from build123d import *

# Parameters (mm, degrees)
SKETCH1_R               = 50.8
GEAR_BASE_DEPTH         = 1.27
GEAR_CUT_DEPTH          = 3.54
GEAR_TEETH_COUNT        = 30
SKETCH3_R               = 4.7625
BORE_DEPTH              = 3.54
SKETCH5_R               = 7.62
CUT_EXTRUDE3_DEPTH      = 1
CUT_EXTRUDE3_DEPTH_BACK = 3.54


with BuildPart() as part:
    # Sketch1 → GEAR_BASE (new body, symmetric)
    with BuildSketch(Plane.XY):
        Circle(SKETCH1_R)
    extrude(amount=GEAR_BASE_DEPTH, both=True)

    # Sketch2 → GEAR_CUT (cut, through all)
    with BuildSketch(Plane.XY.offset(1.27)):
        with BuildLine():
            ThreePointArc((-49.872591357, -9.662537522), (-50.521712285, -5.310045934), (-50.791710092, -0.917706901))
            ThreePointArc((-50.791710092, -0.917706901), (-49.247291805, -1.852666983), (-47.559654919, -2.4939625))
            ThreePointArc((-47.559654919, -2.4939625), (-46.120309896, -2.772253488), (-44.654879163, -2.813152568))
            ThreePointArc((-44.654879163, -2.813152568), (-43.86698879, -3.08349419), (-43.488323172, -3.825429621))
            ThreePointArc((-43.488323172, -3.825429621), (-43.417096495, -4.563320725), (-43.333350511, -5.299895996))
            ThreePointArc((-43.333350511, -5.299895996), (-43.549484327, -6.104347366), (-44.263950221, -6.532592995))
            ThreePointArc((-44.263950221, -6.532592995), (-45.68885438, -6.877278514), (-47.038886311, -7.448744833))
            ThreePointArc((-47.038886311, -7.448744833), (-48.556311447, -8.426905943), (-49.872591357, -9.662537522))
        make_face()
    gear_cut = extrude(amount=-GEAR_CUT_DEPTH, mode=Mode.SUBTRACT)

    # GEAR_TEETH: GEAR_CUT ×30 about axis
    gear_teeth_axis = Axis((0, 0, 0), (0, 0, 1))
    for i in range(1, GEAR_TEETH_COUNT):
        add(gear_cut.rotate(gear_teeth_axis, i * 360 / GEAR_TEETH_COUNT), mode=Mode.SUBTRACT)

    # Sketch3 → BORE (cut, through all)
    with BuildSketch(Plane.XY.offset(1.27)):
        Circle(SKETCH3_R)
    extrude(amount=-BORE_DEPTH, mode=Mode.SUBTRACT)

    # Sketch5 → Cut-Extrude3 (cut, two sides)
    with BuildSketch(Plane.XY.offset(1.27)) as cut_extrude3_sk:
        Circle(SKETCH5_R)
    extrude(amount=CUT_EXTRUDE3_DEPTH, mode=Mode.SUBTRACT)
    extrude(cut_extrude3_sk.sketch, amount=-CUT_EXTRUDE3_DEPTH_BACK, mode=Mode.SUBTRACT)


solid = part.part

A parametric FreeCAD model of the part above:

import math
import FreeCAD as App
import Part
import Sketcher
Q = App.Units.Quantity

doc = App.newDocument("Part")
body = doc.addObject("PartDesign::Body", "Body")

# Sketch on XY plane
sketch1 = body.newObject("Sketcher::SketchObject", "Sketch")
sketch1.AttachmentSupport = (doc.getObject("XY_Plane"), [""])
sketch1.MapMode = "FlatFace"
sketch1.addGeometry(Part.Circle(App.Vector(0, 0, 0), App.Vector(0, 0, 1), 51), False)
sketch1.addConstraint([
    Sketcher.Constraint("Coincident", 0, 3, -1, 1),
    Sketcher.Constraint("Diameter", 0, Q("4 in")),
])
pad1 = body.newObject("PartDesign::Pad", "Pad")
pad1.Profile = sketch1
pad1.Length = Q("0.1 in")
pad1.Midplane = True

# Sketch on XY plane
sketch2 = body.newObject("Sketcher::SketchObject", "Sketch001")
sketch2.AttachmentSupport = (doc.getObject("XY_Plane"), [""])
sketch2.MapMode = "FlatFace"
sketch2.AttachmentOffset = App.Placement(App.Vector(0, 0, 0.05 * 25.4), App.Rotation())
sketch2.addGeometry([
    Part.ArcOfCircle(Part.Circle(App.Vector(0, 0, 0), App.Vector(0, 0, 1), 50.8), math.radians(-178.96), math.radians(-169.04)),  # 0
    Part.ArcOfCircle(Part.Circle(App.Vector(-42.4, -16.3, 0), App.Vector(0, 0, 1), 10), math.radians(118), math.radians(138)),  # 1
    Part.ArcOfCircle(Part.Circle(App.Vector(-42.9, -15.4, 0), App.Vector(0, 0, 1), 9), math.radians(98.93), math.radians(117.61)),  # 2
    Part.ArcOfCircle(Part.Circle(App.Vector(-44.4, -5.4, 0), App.Vector(0, 0, 1), 1.1), math.radians(-81), math.radians(7)),  # 3
    Part.ArcOfCircle(Part.Circle(App.Vector(0, 0, 0), App.Vector(0, 0, 1), 43.7), math.radians(-174.97), math.radians(-173.03)),  # 4
    Part.ArcOfCircle(Part.Circle(App.Vector(-44.6, -3.9, 0), App.Vector(0, 0, 1), 1.1), math.radians(5), math.radians(93)),  # 5
    Part.ArcOfCircle(Part.Circle(App.Vector(-45.1, 6.2, 0), App.Vector(0, 0, 1), 9), math.radians(-105.61), math.radians(-86.93)),  # 6
    Part.ArcOfCircle(Part.Circle(App.Vector(-44.9, 7.1, 0), App.Vector(0, 0, 1), 10), math.radians(-126), math.radians(-106)),  # 7
], False)
sketch2.addConstraint([
    Sketcher.Constraint("Coincident", 0, 2, 1, 2),
    Sketcher.Constraint("Tangent", 1, 1, 2, 2),
    Sketcher.Constraint("Tangent", 2, 1, 3, 1),
    Sketcher.Constraint("Tangent", 3, 2, 4, 2),
    Sketcher.Constraint("Tangent", 4, 1, 5, 1),
    Sketcher.Constraint("Tangent", 5, 2, 6, 2),
    Sketcher.Constraint("Tangent", 6, 1, 7, 2),
    Sketcher.Constraint("Coincident", 7, 1, 0, 1),
    Sketcher.Constraint("Coincident", 0, 3, -1, 1),
    Sketcher.Constraint("Coincident", 4, 3, -1, 1),
    Sketcher.Constraint("Equal", 3, 5),
    Sketcher.Constraint("Equal", 2, 6),
    Sketcher.Constraint("Equal", 1, 7),
    Sketcher.Constraint("Radius", 0, Q("2 in")),
    Sketcher.Constraint("Radius", 4, Q("1.71875 in")),
    Sketcher.Constraint("Radius", 1, 9.97585),
    Sketcher.Constraint("Radius", 3, 1.11125),
    Sketcher.Constraint("DistanceX", 2, 3, -1, 1, Q("1.6877 in")),
    Sketcher.Constraint("Radius", 2, 8.999048),
    Sketcher.Constraint("DistanceX", 5, 3, -1, 1, 44.595299),
    Sketcher.Constraint("DistanceX", 3, 3, 2, 3, 1.5688),
    Sketcher.Constraint("DistanceY", 2, 3, 1, 1, 7.9739),
    Sketcher.Constraint("DistanceX", 6, 3, -1, 1, 45.13737),
    Sketcher.Constraint("DistanceY", 6, 3, 7, 3, 0.940751),
])
pocket1 = body.newObject("PartDesign::Pocket", "Pocket")
pocket1.Profile = sketch2
pocket1.Type = "ThroughAll"
doc.recompute()

polarpattern = body.newObject("PartDesign::PolarPattern", "PolarPattern")
polarpattern.Originals = [pocket1]
polarpattern.Axis = (doc.getObject("Z_Axis"), [""])
polarpattern.Angle = 360
polarpattern.Occurrences = 30
body.Tip = polarpattern

# Sketch on XY plane
sketch3 = body.newObject("Sketcher::SketchObject", "Sketch002")
sketch3.AttachmentSupport = (doc.getObject("XY_Plane"), [""])
sketch3.MapMode = "FlatFace"
sketch3.AttachmentOffset = App.Placement(App.Vector(0, 0, 0.05 * 25.4), App.Rotation())
sketch3.addGeometry(Part.Circle(App.Vector(0, 0, 0), App.Vector(0, 0, 1), 4.8), False)
sketch3.addConstraint([
    Sketcher.Constraint("Coincident", 0, 3, -1, 1),
    Sketcher.Constraint("Diameter", 0, Q("0.375 in")),
])
pocket2 = body.newObject("PartDesign::Pocket", "Pocket001")
pocket2.Profile = sketch3
pocket2.Type = "ThroughAll"

# Sketch on XY plane
sketch4 = body.newObject("Sketcher::SketchObject", "Sketch003")
sketch4.AttachmentSupport = (doc.getObject("XY_Plane"), [""])
sketch4.MapMode = "FlatFace"
sketch4.AttachmentOffset = App.Placement(App.Vector(0, 0, 0.05 * 25.4), App.Rotation())
sketch4.addGeometry(Part.Circle(App.Vector(0, 0, 0), App.Vector(0, 0, 1), 8), False)
sketch4.addConstraint([
    Sketcher.Constraint("Coincident", 0, 3, -1, 1),
    Sketcher.Constraint("Diameter", 0, Q("0.6 in")),
])
pocket3 = body.newObject("PartDesign::Pocket", "Pocket002")
pocket3.Profile = sketch4
pocket3.Type = "ThroughAll"
pocket3.Midplane = True

doc.recompute()
